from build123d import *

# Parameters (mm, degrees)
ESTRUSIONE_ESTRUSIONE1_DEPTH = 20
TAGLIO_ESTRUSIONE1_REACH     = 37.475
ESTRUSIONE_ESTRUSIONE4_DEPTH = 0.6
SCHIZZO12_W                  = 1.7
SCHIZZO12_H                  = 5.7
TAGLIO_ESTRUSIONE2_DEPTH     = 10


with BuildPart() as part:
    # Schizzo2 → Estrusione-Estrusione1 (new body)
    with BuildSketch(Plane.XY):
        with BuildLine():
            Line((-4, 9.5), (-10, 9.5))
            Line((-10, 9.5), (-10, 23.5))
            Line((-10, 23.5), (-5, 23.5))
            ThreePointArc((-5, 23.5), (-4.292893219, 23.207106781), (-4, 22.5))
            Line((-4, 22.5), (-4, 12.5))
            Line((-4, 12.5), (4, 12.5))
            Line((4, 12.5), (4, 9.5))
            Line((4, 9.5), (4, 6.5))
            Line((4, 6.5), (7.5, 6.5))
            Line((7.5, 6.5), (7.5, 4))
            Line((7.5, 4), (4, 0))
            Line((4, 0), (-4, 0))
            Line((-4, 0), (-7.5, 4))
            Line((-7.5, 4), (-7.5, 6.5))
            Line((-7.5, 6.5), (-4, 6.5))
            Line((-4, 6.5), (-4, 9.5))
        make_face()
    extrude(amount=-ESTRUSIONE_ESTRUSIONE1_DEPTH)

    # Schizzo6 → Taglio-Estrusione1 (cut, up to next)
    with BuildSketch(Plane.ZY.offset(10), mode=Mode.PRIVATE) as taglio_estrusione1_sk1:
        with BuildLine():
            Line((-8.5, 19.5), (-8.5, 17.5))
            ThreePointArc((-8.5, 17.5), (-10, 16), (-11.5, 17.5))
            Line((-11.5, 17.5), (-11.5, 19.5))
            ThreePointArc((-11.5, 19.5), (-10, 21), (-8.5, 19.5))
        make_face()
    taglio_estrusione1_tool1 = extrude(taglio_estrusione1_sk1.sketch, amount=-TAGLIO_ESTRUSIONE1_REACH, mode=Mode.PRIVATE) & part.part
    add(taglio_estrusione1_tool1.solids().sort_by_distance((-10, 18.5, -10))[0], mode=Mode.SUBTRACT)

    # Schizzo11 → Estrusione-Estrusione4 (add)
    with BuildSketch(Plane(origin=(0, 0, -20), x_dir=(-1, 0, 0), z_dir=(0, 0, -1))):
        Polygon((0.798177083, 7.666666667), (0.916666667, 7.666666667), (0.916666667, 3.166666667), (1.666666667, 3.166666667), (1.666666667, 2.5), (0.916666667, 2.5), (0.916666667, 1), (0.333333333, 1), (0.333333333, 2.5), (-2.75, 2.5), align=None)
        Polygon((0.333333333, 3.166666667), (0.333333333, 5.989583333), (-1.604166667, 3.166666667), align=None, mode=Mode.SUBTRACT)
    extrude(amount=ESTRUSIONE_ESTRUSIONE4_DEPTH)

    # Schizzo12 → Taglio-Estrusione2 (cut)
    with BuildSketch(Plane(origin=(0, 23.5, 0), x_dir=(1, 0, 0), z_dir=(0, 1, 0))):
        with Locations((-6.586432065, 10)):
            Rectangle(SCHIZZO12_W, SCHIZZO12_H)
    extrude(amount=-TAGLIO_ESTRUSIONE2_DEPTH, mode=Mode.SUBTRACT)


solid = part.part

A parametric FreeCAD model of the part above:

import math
import FreeCAD as App
import Part
import Sketcher


def add_polygon(sketch, points):
    """Adds a closed chain of lines whose ends are joined by coincident constraints."""
    first, n = sketch.GeometryCount, len(points)
    for a, b in zip(points, points[1:] + points[:1]):
        sketch.addGeometry(Part.LineSegment(App.Vector(*a, 0), App.Vector(*b, 0)), False)
    for i in range(n):
        sketch.addConstraint(Sketcher.Constraint("Coincident", first + i, 2, first + (i + 1) % n, 1))

doc = App.newDocument("Part")
params = doc.addObject("Spreadsheet::Sheet", "Params")
for row, (alias, value) in enumerate([
    ("sketch1_radius", "1 mm"),
    ("sketch1_width", "6 mm"),
    ("sketch1_width2", "8 mm"),
    ("sketch1_height", "3 mm"),
    ("sketch1_height2", "10 mm"),
    ("pad1_length", "20 mm"),
    ("sketch2_radius", "1.5 mm"),
    ("sketch2_width", "2 mm"),
    ("sketch3_height", "1.5 mm"),
    ("sketch3_height2", "4.5 mm"),
    ("sketch3_width", "0.75 mm"),
    ("pad2_length", "0.6 mm"),
    ("sketch4_width", "1.7 mm"),
    ("sketch4_height", "5.7 mm"),
    ("pocket2_length", "10 mm"),
], start=1):
    params.set(f"A{row}", alias)
    params.set(f"B{row}", "=" + value)
    params.setAlias(f"B{row}", alias)

body = doc.addObject("PartDesign::Body", "Body")

sketch1 = body.newObject("Sketcher::SketchObject", "Sketch")
sketch1.AttachmentSupport = (doc.getObject("XY_Plane"), [""])
sketch1.MapMode = "FlatFace"
sketch1.addGeometry([
    Part.LineSegment(App.Vector(-10, 9.5, 0), App.Vector(-4, 9.5, 0)),
    Part.LineSegment(App.Vector(-4, 9.5, 0), App.Vector(-4, 6.5, 0)),
    Part.LineSegment(App.Vector(-4, 6.5, 0), App.Vector(-7.5, 6.5, 0)),
    Part.LineSegment(App.Vector(-7.5, 6.5, 0), App.Vector(-7.5, 4, 0)),
    Part.LineSegment(App.Vector(-7.5, 4, 0), App.Vector(-4, 0, 0)),
    Part.LineSegment(App.Vector(-4, 0, 0), App.Vector(4, 0, 0)),
    Part.LineSegment(App.Vector(4, 0, 0), App.Vector(7.5, 4, 0)),
    Part.LineSegment(App.Vector(7.5, 4, 0), App.Vector(7.5, 6.5, 0)),
    Part.LineSegment(App.Vector(7.5, 6.5, 0), App.Vector(4, 6.5, 0)),
    Part.LineSegment(App.Vector(4, 6.5, 0), App.Vector(4, 12.5, 0)),
    Part.LineSegment(App.Vector(4, 12.5, 0), App.Vector(-4, 12.5, 0)),
    Part.LineSegment(App.Vector(-4, 12.5, 0), App.Vector(-4, 22.5, 0)),
    Part.ArcOfCircle(Part.Circle(App.Vector(-5, 22.5, 0), App.Vector(0, 0, 1), 1), math.radians(0), math.radians(90)),
    Part.LineSegment(App.Vector(-5, 23.5, 0), App.Vector(-10, 23.5, 0)),
    Part.LineSegment(App.Vector(-10, 23.5, 0), App.Vector(-10, 9.5, 0)),
], False)
sketch1.addConstraint([
    Sketcher.Constraint("Coincident", 0, 2, 1, 1),
    Sketcher.Constraint("Coincident", 1, 2, 2, 1),
    Sketcher.Constraint("Coincident", 2, 2, 3, 1),
    Sketcher.Constraint("Coincident", 3, 2, 4, 1),
    Sketcher.Constraint("Coincident", 4, 2, 5, 1),
    Sketcher.Constraint("Coincident", 5, 2, 6, 1),
    Sketcher.Constraint("Coincident", 6, 2, 7, 1),
    Sketcher.Constraint("Coincident", 7, 2, 8, 1),
    Sketcher.Constraint("Coincident", 8, 2, 9, 1),
    Sketcher.Constraint("Coincident", 9, 2, 10, 1),
    Sketcher.Constraint("Coincident", 10, 2, 11, 1),
    Sketcher.Constraint("Tangent", 11, 2, 12, 1),
    Sketcher.Constraint("Tangent", 12, 2, 13, 1),
    Sketcher.Constraint("Coincident", 13, 2, 14, 1),
    Sketcher.Constraint("Coincident", 14, 2, 0, 1),
    Sketcher.Constraint("Horizontal", 0),
    Sketcher.Constraint("Vertical", 1),
    Sketcher.Constraint("Horizontal", 2),
    Sketcher.Constraint("Vertical", 3),
    Sketcher.Constraint("Horizontal", 5),
    Sketcher.Constraint("Vertical", 7),
    Sketcher.Constraint("Horizontal", 8),
    Sketcher.Constraint("Vertical", 9),
    Sketcher.Constraint("Horizontal", 10),
    Sketcher.Constraint("Vertical", 11),
    Sketcher.Constraint("Horizontal", 13),
    Sketcher.Constraint("Vertical", 14),
    Sketcher.Constraint("Symmetric", 4, 2, 5, 2, -1, 1),
    Sketcher.Constraint("Symmetric", 3, 2, 6, 2, -2),
    Sketcher.Constraint("Symmetric", 1, 2, 8, 2, -2),
    Sketcher.Constraint("Vertical", 1, 2, 4, 2),
    Sketcher.Constraint("Vertical", 4, 2, 10, 2),
    Sketcher.Constraint("Equal", 0, 9),
    Sketcher.Constraint("Radius", 12, 1.0),
    Sketcher.Constraint("DistanceX", 0, 1, 0, 2, 6.0),
    Sketcher.Constraint("DistanceX", 5, 1, 5, 2, 8.0),
    Sketcher.Constraint("DistanceY", 1, 2, 1, 1, 3.0),
    Sketcher.Constraint("DistanceY", 11, 1, 11, 2, 10.0),
    Sketcher.Constraint("DistanceX", 2, 2, 2, 1, 3.5),
    Sketcher.Constraint("DistanceY", 3, 2, 3, 1, 2.5),
    Sketcher.Constraint("DistanceY", -1, 1, 3, 2, 4.0),
])
sketch1.setExpression("Constraints[33]", "Params.sketch1_radius")
sketch1.setExpression("Constraints[34]", "Params.sketch1_width")
sketch1.setExpression("Constraints[35]", "Params.sketch1_width2")
sketch1.setExpression("Constraints[36]", "Params.sketch1_height")
sketch1.setExpression("Constraints[37]", "Params.sketch1_height2")
pad1 = body.newObject("PartDesign::Pad", "Pad")
pad1.Profile = sketch1
pad1.setExpression("Length", "Params.pad1_length")
pad1.Reversed = True

sketch2 = body.newObject("Sketcher::SketchObject", "Sketch001")
sketch2.AttachmentSupport = (doc.getObject("YZ_Plane"), [""])
sketch2.MapMode = "FlatFace"
sketch2.AttachmentOffset = App.Placement(App.Vector(0, 0, -10), App.Rotation())
sketch2.addGeometry([
    Part.LineSegment(App.Vector(17.5, -8.5, 0), App.Vector(19.5, -8.5, 0)),
    Part.ArcOfCircle(Part.Circle(App.Vector(19.5, -10, 0), App.Vector(0, 0, 1), 1.5), math.radians(-90), math.radians(90)),
    Part.LineSegment(App.Vector(19.5, -11.5, 0), App.Vector(17.5, -11.5, 0)),
    Part.ArcOfCircle(Part.Circle(App.Vector(17.5, -10, 0), App.Vector(0, 0, 1), 1.5), math.radians(90), math.radians(270)),
], False)
sketch2.addConstraint([
    Sketcher.Constraint("Tangent", 0, 2, 1, 2),
    Sketcher.Constraint("Tangent", 1, 1, 2, 1),
    Sketcher.Constraint("Tangent", 2, 2, 3, 2),
    Sketcher.Constraint("Tangent", 3, 1, 0, 1),
    Sketcher.Constraint("Horizontal", 0),
    Sketcher.Constraint("Horizontal", 2),
    Sketcher.Constraint("Radius", 1, 1.5),
    Sketcher.Constraint("DistanceX", 0, 1, 0, 2, 2.0),
    Sketcher.Constraint("DistanceY", 1, 3, -1, 1, 10.0),
    Sketcher.Constraint("DistanceX", -1, 1, 1, 3, 19.5),
])
sketch2.setExpression("Constraints[6]", "Params.sketch2_radius")
sketch2.setExpression("Constraints[7]", "Params.sketch2_width")
pocket1 = body.newObject("PartDesign::Pocket", "Pocket")
pocket1.Profile = sketch2
pocket1.Type = "UpToFirst"
pocket1.Reversed = True

sketch3 = body.newObject("Sketcher::SketchObject", "Sketch002")
sketch3.AttachmentSupport = (doc.getObject("XY_Plane"), [""])
sketch3.MapMode = "FlatFace"
sketch3.AttachmentOffset = App.Placement(App.Vector(0, 0, -20), App.Rotation())
add_polygon(sketch3, [(-0.92, 7.67), (-0.8, 7.67), (2.75, 2.5), (-0.33, 2.5), (-0.33, 1), (-0.92, 1), (-0.92, 2.5), (-1.67, 2.5), (-1.67, 3.17), (-0.92, 3.17)])
add_polygon(sketch3, [(-0.33, 3.17), (1.6, 3.17), (-0.33, 5.99)])
sketch3.addConstraint([
    Sketcher.Constraint("Horizontal", 0),
    Sketcher.Constraint("Horizontal", 2),
    Sketcher.Constraint("Vertical", 3),
    Sketcher.Constraint("Horizontal", 4),
    Sketcher.Constraint("Vertical", 5),
    Sketcher.Constraint("Horizontal", 6),
    Sketcher.Constraint("Vertical", 7),
    Sketcher.Constraint("Horizontal", 8),
    Sketcher.Constraint("Vertical", 9),
    Sketcher.Constraint("Horizontal", 10),
    Sketcher.Constraint("Vertical", 12),
    Sketcher.Constraint("Horizontal", 2, 2, 5, 2),
    Sketcher.Constraint("Horizontal", 8, 2, 10, 2),
    Sketcher.Constraint("Vertical", 5, 2, 8, 2),
    Sketcher.Constraint("Vertical", 3, 2, 11, 2),
    Sketcher.Constraint("DistanceY", 3, 2, 3, 1, 1.5),
    Sketcher.Constraint("DistanceY", 9, 1, 9, 2, 4.5),
    Sketcher.Constraint("DistanceY", -1, 1, 3, 2, 1.0),
    Sketcher.Constraint("DistanceX", 6, 2, 6, 1, 0.75),
    Sketcher.Constraint("DistanceX", -1, 1, 1, 2, 2.75),
    Sketcher.Constraint("DistanceX", 10, 1, 10, 2, 1.9375),
    Sketcher.Constraint("DistanceX", 0, 1, 0, 2, 0.11849),
    Sketcher.Constraint("DistanceX", 2, 2, 2, 1, 3.083333),
    Sketcher.Constraint("DistanceX", 4, 2, 4, 1, 0.583333),
    Sketcher.Constraint("DistanceY", 7, 1, 7, 2, 0.666667),
    Sketcher.Constraint("DistanceY", 12, 2, 12, 1, 2.822917),
])
sketch3.setExpression("Constraints[28]", "Params.sketch3_height")
sketch3.setExpression("Constraints[29]", "Params.sketch3_height2")
sketch3.setExpression("Constraints[31]", "Params.sketch3_width")
pad2 = body.newObject("PartDesign::Pad", "Pad001")
pad2.Profile = sketch3
pad2.setExpression("Length", "Params.pad2_length")
pad2.Reversed = True

sketch4 = body.newObject("Sketcher::SketchObject", "Sketch003")
sketch4.AttachmentSupport = (doc.getObject("XZ_Plane"), [""])
sketch4.MapMode = "FlatFace"
sketch4.AttachmentOffset = App.Placement(App.Vector(0, 0, -23.5), App.Rotation())
add_polygon(sketch4, [(-7.4, -12.8), (-7.4, -7.2), (-5.7, -7.2), (-5.7, -12.8)])
sketch4.addConstraint([
    Sketcher.Constraint("Vertical", 0),
    Sketcher.Constraint("Horizontal", 1),
    Sketcher.Constraint("Vertical", 2),
    Sketcher.Constraint("Horizontal", 3),
    Sketcher.Constraint("DistanceX", 1, 1, 1, 2, 1.7),
    Sketcher.Constraint("DistanceY", 0, 1, 0, 2, 5.7),
    Sketcher.Constraint("DistanceY", 0, 2, -1, 1, 7.15),
    Sketcher.Constraint("DistanceX", 0, 2, -1, 1, 7.436432),
])
sketch4.setExpression("Constraints[8]", "Params.sketch4_width")
sketch4.setExpression("Constraints[9]", "Params.sketch4_height")
pocket2 = body.newObject("PartDesign::Pocket", "Pocket001")
pocket2.Profile = sketch4
pocket2.setExpression("Length", "Params.pocket2_length")
pocket2.Reversed = True

doc.recompute()
